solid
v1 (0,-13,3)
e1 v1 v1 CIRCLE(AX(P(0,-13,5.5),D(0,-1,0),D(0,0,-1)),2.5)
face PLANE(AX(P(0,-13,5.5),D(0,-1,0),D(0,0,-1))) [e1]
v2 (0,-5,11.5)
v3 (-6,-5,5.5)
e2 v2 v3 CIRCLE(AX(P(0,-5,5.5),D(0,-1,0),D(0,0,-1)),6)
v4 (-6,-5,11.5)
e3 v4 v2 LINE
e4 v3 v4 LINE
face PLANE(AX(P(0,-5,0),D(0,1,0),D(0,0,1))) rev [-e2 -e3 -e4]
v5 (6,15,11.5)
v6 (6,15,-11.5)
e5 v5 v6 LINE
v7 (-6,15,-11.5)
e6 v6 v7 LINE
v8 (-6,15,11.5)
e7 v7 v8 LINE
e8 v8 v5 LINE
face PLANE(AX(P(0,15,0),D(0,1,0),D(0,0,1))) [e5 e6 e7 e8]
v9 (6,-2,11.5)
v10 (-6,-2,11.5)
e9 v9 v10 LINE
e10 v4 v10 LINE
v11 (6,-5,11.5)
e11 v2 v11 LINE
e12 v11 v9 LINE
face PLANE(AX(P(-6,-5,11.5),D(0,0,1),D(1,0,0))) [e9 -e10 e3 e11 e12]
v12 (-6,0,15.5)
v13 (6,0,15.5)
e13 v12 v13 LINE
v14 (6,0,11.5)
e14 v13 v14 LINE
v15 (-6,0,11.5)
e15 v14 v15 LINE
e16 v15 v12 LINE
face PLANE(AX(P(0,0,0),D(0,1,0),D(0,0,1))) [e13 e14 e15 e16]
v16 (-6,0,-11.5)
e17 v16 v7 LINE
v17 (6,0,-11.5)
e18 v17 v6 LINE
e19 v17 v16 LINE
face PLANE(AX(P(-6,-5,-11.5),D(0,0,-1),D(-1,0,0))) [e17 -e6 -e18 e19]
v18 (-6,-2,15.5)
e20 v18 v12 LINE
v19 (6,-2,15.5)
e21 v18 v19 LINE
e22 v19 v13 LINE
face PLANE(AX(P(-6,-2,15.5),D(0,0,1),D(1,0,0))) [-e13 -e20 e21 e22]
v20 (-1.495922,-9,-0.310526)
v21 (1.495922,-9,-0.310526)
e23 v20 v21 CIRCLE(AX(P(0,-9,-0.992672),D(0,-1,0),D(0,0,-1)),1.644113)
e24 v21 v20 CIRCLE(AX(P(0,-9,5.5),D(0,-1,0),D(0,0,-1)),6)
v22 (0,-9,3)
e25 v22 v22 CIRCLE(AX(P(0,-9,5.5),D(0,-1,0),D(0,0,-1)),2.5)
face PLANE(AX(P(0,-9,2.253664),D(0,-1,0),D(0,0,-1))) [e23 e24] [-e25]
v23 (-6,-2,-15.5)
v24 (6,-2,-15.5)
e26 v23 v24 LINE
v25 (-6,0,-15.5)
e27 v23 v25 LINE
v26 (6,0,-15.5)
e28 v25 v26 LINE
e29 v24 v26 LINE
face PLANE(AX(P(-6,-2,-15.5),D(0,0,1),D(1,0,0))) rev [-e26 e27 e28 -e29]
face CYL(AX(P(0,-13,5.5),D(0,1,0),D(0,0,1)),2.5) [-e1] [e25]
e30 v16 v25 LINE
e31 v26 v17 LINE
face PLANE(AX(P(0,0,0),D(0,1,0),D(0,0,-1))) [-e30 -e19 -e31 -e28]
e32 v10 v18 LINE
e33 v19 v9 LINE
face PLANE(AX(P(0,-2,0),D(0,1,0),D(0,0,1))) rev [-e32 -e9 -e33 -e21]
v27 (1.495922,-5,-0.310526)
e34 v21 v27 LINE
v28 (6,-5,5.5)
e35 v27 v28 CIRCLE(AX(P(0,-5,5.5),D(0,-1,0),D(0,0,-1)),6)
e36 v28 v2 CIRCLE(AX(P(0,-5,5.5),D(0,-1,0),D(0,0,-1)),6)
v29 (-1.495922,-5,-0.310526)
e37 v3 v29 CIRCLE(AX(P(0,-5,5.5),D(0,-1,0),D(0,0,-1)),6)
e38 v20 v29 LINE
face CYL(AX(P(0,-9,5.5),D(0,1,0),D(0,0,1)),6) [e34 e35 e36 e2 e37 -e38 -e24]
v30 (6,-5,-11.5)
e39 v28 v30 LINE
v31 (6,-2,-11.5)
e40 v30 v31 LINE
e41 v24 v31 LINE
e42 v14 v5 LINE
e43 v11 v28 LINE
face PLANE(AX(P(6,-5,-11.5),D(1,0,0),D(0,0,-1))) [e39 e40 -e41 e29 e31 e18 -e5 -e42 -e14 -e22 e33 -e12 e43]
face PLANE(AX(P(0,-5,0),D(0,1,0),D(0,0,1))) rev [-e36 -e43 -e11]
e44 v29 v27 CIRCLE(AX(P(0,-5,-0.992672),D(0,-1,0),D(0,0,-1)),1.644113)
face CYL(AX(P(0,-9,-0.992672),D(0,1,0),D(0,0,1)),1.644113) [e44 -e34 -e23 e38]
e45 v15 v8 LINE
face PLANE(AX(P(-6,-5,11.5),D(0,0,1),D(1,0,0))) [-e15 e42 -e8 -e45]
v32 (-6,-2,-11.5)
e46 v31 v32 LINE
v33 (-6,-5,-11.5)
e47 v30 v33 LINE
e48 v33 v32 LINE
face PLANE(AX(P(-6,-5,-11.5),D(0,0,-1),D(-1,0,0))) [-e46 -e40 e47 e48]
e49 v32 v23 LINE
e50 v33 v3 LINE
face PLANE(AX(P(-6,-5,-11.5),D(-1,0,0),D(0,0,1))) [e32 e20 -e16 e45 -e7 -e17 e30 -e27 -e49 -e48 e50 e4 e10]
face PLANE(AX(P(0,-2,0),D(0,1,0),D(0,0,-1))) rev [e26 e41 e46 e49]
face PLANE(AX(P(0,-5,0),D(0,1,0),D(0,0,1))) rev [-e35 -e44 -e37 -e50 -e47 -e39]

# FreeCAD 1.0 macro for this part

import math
import FreeCAD as App
import Part
import Sketcher

V = App.Vector
Q = App.Units.Quantity


def add_polygon(sketch, points):
    """Adds a closed chain of lines whose ends are joined by coincident constraints."""
    first, n = sketch.GeometryCount, len(points)
    for a, b in zip(points, points[1:] + points[:1]):
        sketch.addGeometry(Part.LineSegment(App.Vector(*a, 0), App.Vector(*b, 0)), False)
    for i in range(n):
        sketch.addConstraint(Sketcher.Constraint("Coincident", first + i, 2, first + (i + 1) % n, 1))

doc = App.newDocument("Part")
body = doc.addObject("PartDesign::Body", "Body")

# Sketch on XZ plane
sketch1 = body.newObject("Sketcher::SketchObject", "Sketch")
sketch1.AttachmentSupport = (doc.getObject("XZ_Plane"), [""])
sketch1.MapMode = "FlatFace"
add_polygon(sketch1, [(-6, -12), (-6, 12), (6, 12), (6, -12)])  # lines 0-3
sketch1.addConstraint(Sketcher.Constraint("Vertical", 0))
sketch1.addConstraint(Sketcher.Constraint("Horizontal", 1))
sketch1.addConstraint(Sketcher.Constraint("Vertical", 2))
sketch1.addConstraint(Sketcher.Constraint("Horizontal", 3))
sketch1.addConstraint(Sketcher.Constraint("Symmetric", 0, 2, 2, 2, -1, 1))
sketch1.addConstraint(Sketcher.Constraint("DistanceX", 1, 1, 1, 2, Q("12 mm")))
sketch1.addConstraint(Sketcher.Constraint("DistanceY", 0, 1, 0, 2, Q("23 mm")))
pad1 = body.newObject("PartDesign::Pad", "Pad")
pad1.Profile = sketch1
pad1.Type = "TwoLengths"
pad1.Length = 15
pad1.Length2 = 5
pad1.Reversed = True

# Sketch on XZ plane
sketch2 = body.newObject("Sketcher::SketchObject", "Sketch001")
sketch2.AttachmentSupport = (doc.getObject("XZ_Plane"), [""])
sketch2.MapMode = "FlatFace"
sketch2.AttachmentOffset = App.Placement(V(0, 0, 5), App.Rotation())
sketch2.addGeometry(Part.ArcOfCircle(Part.Circle(V(0, 5.5, 0), V(0, 0, 1), 6), math.radians(-76), math.radians(256)), False)
sketch2.addGeometry(Part.ArcOfCircle(Part.Circle(V(0, -1, 0), V(0, 0, 1), 1.6), math.radians(155), math.radians(385)), False)
sketch2.addConstraint(Sketcher.Constraint("Coincident", 0, 1, 1, 2))
sketch2.addConstraint(Sketcher.Constraint("Coincident", 1, 1, 0, 2))
sketch2.addConstraint(Sketcher.Constraint("Symmetric", 0, 1, 1, 1, -2))
sketch2.addConstraint(Sketcher.Constraint("Radius", 0, Q("6 mm")))
sketch2.addConstraint(Sketcher.Constraint("DistanceY", -1, 1, 0, 3, Q("5.5 mm")))
sketch2.addConstraint(Sketcher.Constraint("Radius", 1, Q("1.644113 mm")))
sketch2.addConstraint(Sketcher.Constraint("DistanceY", 1, 3, -1, 1, Q("0.992672 mm")))
pad2 = body.newObject("PartDesign::Pad", "Pad001")
pad2.Profile = sketch2
pad2.Length = 4

# Sketch on XZ plane
sketch3 = body.newObject("Sketcher::SketchObject", "Sketch002")
sketch3.AttachmentSupport = (doc.getObject("XZ_Plane"), [""])
sketch3.MapMode = "FlatFace"
sketch3.AttachmentOffset = App.Placement(V(0, 0, 9), App.Rotation())
sketch3.addGeometry(Part.Circle(V(0, 5.5, 0), V(0, 0, 1), 2.5), False)
sketch3.addConstraint(Sketcher.Constraint("PointOnObject", 0, 3, -2))
sketch3.addConstraint(Sketcher.Constraint("Diameter", 0, Q("5 mm")))
sketch3.addConstraint(Sketcher.Constraint("DistanceY", -1, 1, 0, 3, Q("5.5 mm")))
pad3 = body.newObject("PartDesign::Pad", "Pad002")
pad3.Profile = sketch3
pad3.Length = 4

# Sketch on XZ plane
sketch4 = body.newObject("Sketcher::SketchObject", "Sketch003")
sketch4.AttachmentSupport = (doc.getObject("XZ_Plane"), [""])
sketch4.MapMode = "FlatFace"
add_polygon(sketch4, [(-6, 11.5), (-6, 15.5), (6, 15.5), (6, 11.5)])  # lines 0-3
sketch4.addConstraint(Sketcher.Constraint("Vertical", 0))
sketch4.addConstraint(Sketcher.Constraint("Horizontal", 1))
sketch4.addConstraint(Sketcher.Constraint("Vertical", 2))
sketch4.addConstraint(Sketcher.Constraint("Horizontal", 3))
sketch4.addConstraint(Sketcher.Constraint("DistanceX", 1, 1, 1, 2, Q("12 mm")))
sketch4.addConstraint(Sketcher.Constraint("DistanceY", 0, 1, 0, 2, Q("4 mm")))
sketch4.addConstraint(Sketcher.Constraint("DistanceX", 0, 2, -1, 1, Q("6 mm")))
sketch4.addConstraint(Sketcher.Constraint("DistanceY", -1, 1, 0, 2, Q("15.5 mm")))
pad4 = body.newObject("PartDesign::Pad", "Pad003")
pad4.Profile = sketch4
pad4.Length = 2
doc.recompute()

mirrored = body.newObject("PartDesign::Mirrored", "Mirrored")
mirrored.Originals = [pad4]
mirrored.MirrorPlane = (doc.getObject("XY_Plane"), [""])
body.Tip = mirrored

doc.recompute()
